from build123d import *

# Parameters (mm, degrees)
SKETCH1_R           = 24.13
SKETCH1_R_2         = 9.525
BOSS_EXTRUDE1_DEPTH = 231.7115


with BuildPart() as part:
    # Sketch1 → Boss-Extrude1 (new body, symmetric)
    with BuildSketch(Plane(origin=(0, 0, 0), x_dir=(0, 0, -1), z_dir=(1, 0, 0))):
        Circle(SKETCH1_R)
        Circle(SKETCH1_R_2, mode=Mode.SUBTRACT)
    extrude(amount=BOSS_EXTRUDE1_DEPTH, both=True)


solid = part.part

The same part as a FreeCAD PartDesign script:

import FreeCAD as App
import Part
import Sketcher
from FreeCAD import Vector
Q = App.Units.Quantity

doc = App.newDocument("Part")
body = doc.addObject("PartDesign::Body", "Body")

# Sketch on YZ plane
sketch1 = body.newObject("Sketcher::SketchObject", "Sketch")
sketch1.AttachmentSupport = (doc.getObject("YZ_Plane"), [""])
sketch1.MapMode = "FlatFace"
sketch1.addGeometry([
    Part.Circle(Vector(0, 0, 0), Vector(0, 0, 1), 24),
    Part.Circle(Vector(0, 0, 0), Vector(0, 0, 1), 10),
], False)
sketch1.addConstraint([
    Sketcher.Constraint("Coincident", 0, 3, -1, 1),
    Sketcher.Constraint("Coincident", 1, 3, -1, 1),
    Sketcher.Constraint("Diameter", 0, Q("1.9 in")),
    Sketcher.Constraint("Diameter", 1, Q("0.75 in")),
])
pad1 = body.newObject("PartDesign::Pad", "Pad")
pad1.Profile = sketch1
pad1.Length = Q("18.245 in")
pad1.Midplane = True

doc.recompute()
